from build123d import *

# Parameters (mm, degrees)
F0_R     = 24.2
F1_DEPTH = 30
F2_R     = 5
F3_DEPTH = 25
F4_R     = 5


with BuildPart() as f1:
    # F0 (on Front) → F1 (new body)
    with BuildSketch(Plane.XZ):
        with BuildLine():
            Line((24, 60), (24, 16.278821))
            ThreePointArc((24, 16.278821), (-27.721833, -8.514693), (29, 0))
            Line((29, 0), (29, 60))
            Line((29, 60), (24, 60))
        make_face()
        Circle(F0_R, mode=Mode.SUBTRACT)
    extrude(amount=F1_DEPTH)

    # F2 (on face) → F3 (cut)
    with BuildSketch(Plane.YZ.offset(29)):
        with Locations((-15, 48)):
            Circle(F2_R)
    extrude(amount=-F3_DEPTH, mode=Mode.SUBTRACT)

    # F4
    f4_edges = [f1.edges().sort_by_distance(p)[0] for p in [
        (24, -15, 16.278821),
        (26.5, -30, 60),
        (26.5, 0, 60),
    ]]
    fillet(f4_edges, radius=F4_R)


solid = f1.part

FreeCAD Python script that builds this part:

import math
import FreeCAD as App
import Part
import Sketcher
from FreeCAD import Vector


def edges_at(feature, points):
    """Names of the edges that pass closest to the given points."""
    edges = feature.Shape.Edges
    near = lambda p: min(range(len(edges)), key=lambda i: edges[i].distToShape(Part.Vertex(*p))[0])
    return sorted({f"Edge{near(p) + 1}" for p in points})

doc = App.newDocument("Part")
params = doc.addObject("Spreadsheet::Sheet", "Params")
for row, (alias, value) in enumerate([
    ("sketch1_radius", "29 mm"),
    ("sketch1_diameter", "48.4 mm"),
    ("sketch1_width", "5 mm"),
    ("sketch1_height", "60 mm"),
    ("pad1_length", "30 mm"),
    ("sketch2_diameter", "10 mm"),
    ("pocket1_length", "25 mm"),
    ("fillet_radius", "5 mm"),
], start=1):
    params.set(f"A{row}", alias)
    params.set(f"B{row}", "=" + value)
    params.setAlias(f"B{row}", alias)

body = doc.addObject("PartDesign::Body", "Body")

# Sketch on XZ plane
sketch1 = body.newObject("Sketcher::SketchObject", "Sketch")
sketch1.AttachmentSupport = (doc.getObject("XZ_Plane"), [""])
sketch1.MapMode = "FlatFace"
sketch1.addGeometry(Part.LineSegment(Vector(24, 60, 0), Vector(24, 16, 0)), False)
sketch1.addGeometry(Part.ArcOfCircle(Part.Circle(Vector(0, 0, 0), Vector(0, 0, 1), 29), math.radians(34), math.radians(360)), False)
sketch1.addGeometry(Part.LineSegment(Vector(29, 0, 0), Vector(29, 60, 0)), False)
sketch1.addGeometry(Part.LineSegment(Vector(29, 60, 0), Vector(24, 60, 0)), False)
sketch1.addGeometry(Part.Circle(Vector(0, 0, 0), Vector(0, 0, 1), 24), False)
sketch1.addConstraint(Sketcher.Constraint("Coincident", 0, 2, 1, 1))
sketch1.addConstraint(Sketcher.Constraint("Tangent", 1, 2, 2, 1))
sketch1.addConstraint(Sketcher.Constraint("Coincident", 2, 2, 3, 1))
sketch1.addConstraint(Sketcher.Constraint("Coincident", 3, 2, 0, 1))
sketch1.addConstraint(Sketcher.Constraint("Vertical", 0))
sketch1.addConstraint(Sketcher.Constraint("Vertical", 2))
sketch1.addConstraint(Sketcher.Constraint("Horizontal", 3))
sketch1.addConstraint(Sketcher.Constraint("Coincident", 1, 3, -1, 1))
sketch1.addConstraint(Sketcher.Constraint("Coincident", 4, 3, -1, 1))
sketch1.addConstraint(Sketcher.Constraint("Radius", 1, 29.0))
sketch1.addConstraint(Sketcher.Constraint("Diameter", 4, 48.4))
sketch1.addConstraint(Sketcher.Constraint("DistanceX", 3, 2, 3, 1, 5.0))
sketch1.addConstraint(Sketcher.Constraint("DistanceY", 2, 1, 2, 2, 60.0))
sketch1.setExpression("Constraints[9]", "Params.sketch1_radius")
sketch1.setExpression("Constraints[10]", "Params.sketch1_diameter")
sketch1.setExpression("Constraints[11]", "Params.sketch1_width")
sketch1.setExpression("Constraints[12]", "Params.sketch1_height")
pad1 = body.newObject("PartDesign::Pad", "Pad")
pad1.Profile = sketch1
pad1.setExpression("Length", "Params.pad1_length")

# Sketch on YZ plane
sketch2 = body.newObject("Sketcher::SketchObject", "Sketch001")
sketch2.AttachmentSupport = (doc.getObject("YZ_Plane"), [""])
sketch2.MapMode = "FlatFace"
sketch2.AttachmentOffset = App.Placement(Vector(0, 0, 29), App.Rotation())
sketch2.addGeometry(Part.Circle(Vector(-15, 48, 0), Vector(0, 0, 1), 5), False)
sketch2.addConstraint(Sketcher.Constraint("Diameter", 0, 10.0))
sketch2.addConstraint(Sketcher.Constraint("DistanceX", 0, 3, -1, 1, 15.0))
sketch2.addConstraint(Sketcher.Constraint("DistanceY", -1, 1, 0, 3, 48.0))
sketch2.setExpression("Constraints[0]", "Params.sketch2_diameter")
pocket1 = body.newObject("PartDesign::Pocket", "Pocket")
pocket1.Profile = sketch2
pocket1.setExpression("Length", "Params.pocket1_length")
doc.recompute()

fillet = body.newObject("PartDesign::Fillet", "Fillet")
fillet.Base = (pocket1, edges_at(pocket1, [(24, -15, 16.279), (26.5, -30, 60), (26.5, 0, 60)]))
fillet.setExpression("Radius", "Params.fillet_radius")

doc.recompute()
